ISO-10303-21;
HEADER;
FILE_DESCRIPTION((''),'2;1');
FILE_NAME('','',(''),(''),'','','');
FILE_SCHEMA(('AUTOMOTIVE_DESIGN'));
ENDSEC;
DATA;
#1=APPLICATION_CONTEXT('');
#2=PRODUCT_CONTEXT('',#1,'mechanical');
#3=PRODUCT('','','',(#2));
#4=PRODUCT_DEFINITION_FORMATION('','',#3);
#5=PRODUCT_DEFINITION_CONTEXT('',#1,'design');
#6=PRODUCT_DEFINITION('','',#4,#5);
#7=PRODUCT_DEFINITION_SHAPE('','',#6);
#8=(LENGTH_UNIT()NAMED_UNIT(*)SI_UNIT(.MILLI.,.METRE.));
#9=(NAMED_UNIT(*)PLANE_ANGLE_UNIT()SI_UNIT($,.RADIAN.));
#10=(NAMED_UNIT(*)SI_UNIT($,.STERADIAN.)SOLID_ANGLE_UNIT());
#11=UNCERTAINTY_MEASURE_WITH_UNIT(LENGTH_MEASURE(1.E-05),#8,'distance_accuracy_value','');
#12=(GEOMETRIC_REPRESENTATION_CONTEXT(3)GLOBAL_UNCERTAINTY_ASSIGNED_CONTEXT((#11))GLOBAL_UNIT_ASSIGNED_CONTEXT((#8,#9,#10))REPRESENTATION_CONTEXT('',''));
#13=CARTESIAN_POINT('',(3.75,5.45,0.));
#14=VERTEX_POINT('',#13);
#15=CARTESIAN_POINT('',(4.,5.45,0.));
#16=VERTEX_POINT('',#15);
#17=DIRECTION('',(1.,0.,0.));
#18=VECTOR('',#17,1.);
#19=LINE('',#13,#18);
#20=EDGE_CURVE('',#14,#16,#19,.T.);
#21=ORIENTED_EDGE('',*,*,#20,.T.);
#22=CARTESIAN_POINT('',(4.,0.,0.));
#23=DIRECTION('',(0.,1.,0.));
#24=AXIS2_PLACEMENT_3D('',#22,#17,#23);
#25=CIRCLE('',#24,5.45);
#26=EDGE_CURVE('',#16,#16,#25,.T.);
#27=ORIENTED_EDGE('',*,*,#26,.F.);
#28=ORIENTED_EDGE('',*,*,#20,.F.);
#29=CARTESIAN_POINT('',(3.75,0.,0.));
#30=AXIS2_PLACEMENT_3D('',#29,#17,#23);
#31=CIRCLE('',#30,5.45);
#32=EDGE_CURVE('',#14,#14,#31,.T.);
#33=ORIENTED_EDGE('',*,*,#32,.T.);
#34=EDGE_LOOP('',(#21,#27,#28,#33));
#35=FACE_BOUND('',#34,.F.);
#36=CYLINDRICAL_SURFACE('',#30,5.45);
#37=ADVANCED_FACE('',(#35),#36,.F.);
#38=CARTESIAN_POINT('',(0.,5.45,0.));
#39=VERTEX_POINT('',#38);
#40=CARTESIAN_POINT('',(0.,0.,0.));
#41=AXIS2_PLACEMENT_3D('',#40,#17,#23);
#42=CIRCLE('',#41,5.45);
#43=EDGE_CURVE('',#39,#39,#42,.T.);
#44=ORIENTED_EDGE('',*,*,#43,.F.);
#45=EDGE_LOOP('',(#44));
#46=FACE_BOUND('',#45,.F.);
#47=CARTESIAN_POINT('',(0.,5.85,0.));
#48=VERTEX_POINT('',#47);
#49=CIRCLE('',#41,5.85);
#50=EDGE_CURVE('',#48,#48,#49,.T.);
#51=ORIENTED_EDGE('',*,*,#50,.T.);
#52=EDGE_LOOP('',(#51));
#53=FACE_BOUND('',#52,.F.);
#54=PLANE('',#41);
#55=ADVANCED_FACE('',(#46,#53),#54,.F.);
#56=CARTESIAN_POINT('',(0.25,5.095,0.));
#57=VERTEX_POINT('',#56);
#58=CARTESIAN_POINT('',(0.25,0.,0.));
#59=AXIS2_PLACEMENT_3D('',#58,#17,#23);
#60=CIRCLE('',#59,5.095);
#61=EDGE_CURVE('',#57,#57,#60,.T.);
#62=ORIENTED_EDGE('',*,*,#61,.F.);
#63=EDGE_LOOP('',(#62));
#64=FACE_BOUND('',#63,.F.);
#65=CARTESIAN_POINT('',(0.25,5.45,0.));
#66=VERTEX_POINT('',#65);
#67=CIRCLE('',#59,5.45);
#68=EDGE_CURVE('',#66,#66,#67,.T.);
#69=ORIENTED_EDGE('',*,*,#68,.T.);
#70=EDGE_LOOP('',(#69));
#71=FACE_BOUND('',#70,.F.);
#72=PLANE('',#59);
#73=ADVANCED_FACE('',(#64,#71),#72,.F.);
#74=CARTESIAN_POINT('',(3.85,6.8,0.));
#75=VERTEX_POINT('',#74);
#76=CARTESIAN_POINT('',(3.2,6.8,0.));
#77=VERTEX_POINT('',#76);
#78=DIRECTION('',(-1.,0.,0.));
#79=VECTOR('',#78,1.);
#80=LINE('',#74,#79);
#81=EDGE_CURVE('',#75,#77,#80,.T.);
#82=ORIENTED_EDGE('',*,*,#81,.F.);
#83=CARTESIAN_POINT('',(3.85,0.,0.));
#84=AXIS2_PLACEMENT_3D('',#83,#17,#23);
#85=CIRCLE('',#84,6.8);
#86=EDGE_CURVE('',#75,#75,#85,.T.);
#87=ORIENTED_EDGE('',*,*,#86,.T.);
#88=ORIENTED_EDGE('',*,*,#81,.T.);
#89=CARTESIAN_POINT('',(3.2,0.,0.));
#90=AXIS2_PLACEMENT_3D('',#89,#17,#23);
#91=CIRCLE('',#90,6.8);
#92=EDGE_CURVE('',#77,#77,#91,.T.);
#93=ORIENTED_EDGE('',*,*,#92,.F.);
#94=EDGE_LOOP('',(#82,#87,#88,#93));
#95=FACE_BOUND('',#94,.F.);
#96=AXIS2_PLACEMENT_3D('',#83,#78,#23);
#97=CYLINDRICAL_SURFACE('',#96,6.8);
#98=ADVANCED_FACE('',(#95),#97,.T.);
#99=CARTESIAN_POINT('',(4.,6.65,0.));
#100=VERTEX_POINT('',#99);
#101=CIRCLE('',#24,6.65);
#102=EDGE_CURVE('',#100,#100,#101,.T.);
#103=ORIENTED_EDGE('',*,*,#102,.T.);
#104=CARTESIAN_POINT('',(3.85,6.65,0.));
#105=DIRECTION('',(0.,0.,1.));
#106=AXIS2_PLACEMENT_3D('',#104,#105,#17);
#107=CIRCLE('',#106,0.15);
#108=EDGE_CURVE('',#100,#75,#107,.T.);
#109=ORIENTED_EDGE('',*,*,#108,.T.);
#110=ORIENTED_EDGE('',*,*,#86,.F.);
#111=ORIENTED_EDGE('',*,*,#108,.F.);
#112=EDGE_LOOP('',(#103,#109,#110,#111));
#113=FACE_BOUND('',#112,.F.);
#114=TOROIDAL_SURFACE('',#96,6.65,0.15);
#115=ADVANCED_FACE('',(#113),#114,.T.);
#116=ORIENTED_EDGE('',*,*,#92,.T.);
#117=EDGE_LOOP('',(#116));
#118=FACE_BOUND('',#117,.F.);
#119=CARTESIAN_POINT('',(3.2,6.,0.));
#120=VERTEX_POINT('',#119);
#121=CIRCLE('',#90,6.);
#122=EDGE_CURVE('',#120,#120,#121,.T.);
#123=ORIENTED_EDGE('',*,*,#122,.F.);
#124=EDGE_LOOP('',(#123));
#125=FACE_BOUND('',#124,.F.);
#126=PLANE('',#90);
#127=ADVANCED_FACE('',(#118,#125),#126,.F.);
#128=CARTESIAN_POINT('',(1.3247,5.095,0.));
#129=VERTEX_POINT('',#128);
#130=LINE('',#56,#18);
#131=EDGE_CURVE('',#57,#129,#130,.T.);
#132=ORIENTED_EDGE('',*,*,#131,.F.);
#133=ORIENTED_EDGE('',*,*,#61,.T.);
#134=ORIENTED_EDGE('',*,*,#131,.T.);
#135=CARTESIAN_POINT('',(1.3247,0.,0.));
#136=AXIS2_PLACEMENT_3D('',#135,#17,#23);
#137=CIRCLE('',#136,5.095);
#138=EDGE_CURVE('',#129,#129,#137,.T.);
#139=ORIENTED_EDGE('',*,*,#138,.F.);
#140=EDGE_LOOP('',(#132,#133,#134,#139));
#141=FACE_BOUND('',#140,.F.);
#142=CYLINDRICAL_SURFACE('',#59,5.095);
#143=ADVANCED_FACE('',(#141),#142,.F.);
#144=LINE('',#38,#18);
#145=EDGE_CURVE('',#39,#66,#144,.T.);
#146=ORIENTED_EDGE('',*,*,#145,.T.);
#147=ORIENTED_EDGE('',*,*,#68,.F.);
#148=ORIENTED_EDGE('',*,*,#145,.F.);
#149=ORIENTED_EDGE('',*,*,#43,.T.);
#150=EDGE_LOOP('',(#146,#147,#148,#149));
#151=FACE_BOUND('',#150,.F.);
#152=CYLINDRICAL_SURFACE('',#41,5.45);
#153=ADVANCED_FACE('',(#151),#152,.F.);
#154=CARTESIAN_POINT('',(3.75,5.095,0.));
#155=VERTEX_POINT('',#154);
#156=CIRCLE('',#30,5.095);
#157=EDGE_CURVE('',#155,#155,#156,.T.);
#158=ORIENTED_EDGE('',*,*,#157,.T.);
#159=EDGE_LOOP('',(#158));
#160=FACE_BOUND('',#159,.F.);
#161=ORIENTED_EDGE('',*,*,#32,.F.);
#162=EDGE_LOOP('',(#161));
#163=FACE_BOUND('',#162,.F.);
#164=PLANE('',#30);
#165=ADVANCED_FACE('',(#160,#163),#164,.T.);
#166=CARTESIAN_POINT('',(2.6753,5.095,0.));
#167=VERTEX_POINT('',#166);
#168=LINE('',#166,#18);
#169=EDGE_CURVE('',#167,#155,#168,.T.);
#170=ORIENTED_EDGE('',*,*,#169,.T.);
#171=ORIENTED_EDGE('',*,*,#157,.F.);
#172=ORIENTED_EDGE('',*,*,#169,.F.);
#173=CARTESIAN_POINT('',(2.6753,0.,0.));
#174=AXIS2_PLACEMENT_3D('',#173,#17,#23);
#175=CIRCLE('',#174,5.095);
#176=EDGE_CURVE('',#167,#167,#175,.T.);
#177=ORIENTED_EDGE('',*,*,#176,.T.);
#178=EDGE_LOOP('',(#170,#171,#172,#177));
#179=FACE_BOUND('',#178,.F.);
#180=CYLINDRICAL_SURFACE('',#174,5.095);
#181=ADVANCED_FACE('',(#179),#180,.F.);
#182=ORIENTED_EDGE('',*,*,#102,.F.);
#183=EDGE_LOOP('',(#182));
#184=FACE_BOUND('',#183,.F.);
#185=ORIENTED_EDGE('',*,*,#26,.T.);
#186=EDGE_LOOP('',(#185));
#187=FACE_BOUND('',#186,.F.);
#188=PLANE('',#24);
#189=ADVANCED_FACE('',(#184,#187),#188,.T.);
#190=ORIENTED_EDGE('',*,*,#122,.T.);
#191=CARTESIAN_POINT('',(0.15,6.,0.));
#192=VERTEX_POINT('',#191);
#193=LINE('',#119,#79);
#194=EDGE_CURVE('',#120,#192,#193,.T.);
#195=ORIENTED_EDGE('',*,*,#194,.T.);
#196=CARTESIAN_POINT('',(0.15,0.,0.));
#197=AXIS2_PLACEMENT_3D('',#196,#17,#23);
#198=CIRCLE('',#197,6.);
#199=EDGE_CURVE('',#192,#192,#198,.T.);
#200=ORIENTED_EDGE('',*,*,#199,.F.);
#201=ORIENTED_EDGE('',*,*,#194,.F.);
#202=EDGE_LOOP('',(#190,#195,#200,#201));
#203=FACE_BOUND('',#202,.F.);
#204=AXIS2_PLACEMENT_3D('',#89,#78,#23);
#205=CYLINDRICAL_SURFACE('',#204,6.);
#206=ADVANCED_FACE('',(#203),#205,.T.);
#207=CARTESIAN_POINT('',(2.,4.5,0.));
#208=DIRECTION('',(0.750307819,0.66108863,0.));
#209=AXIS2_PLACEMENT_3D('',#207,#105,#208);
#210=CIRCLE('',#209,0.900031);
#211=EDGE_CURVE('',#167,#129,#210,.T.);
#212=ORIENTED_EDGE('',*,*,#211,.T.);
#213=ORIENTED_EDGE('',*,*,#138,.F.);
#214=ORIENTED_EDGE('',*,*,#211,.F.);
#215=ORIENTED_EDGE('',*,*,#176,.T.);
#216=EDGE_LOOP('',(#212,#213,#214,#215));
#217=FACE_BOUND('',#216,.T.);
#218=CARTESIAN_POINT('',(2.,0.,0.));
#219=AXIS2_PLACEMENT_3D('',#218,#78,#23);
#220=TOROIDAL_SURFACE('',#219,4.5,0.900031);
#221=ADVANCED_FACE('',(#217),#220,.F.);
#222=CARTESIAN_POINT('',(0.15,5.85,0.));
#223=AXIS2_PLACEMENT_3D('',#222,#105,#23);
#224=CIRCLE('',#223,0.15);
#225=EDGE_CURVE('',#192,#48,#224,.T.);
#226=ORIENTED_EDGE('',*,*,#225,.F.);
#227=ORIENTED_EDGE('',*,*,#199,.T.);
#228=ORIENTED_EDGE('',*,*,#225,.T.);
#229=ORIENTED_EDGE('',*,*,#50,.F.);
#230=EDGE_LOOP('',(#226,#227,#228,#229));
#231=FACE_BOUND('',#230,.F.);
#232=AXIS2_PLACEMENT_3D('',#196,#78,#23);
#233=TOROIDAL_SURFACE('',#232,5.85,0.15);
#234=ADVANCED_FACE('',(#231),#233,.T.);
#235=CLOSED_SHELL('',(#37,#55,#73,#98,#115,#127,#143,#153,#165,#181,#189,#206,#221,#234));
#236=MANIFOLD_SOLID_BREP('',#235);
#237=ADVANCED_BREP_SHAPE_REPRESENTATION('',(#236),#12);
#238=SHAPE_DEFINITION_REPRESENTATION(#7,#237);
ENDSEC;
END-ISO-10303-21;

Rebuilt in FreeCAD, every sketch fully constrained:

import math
import FreeCAD as App
import Part
import Sketcher
from FreeCAD import Vector
Q = App.Units.Quantity

doc = App.newDocument("Part")
params = doc.addObject("Spreadsheet::Sheet", "Params")
for row, (alias, value) in enumerate([
    ("sketch1_radius", "0.9 mm"),
    ("sketch1_radius2", "0.15 mm"),
    ("sketch1_height", "0.4 mm"),
    ("sketch1_height2", "1.2 mm"),
    ("sketch1_width", "0.25 mm"),
    ("revolution_angle", "360 deg"),
], start=1):
    params.set(f"A{row}", alias)
    params.set(f"B{row}", "=" + value)
    params.setAlias(f"B{row}", alias)

body = doc.addObject("PartDesign::Body", "Body")

# Sketch on XY plane
sketch1 = doc.addObject("Sketcher::SketchObject", "Sketch")
body.addObject(sketch1)
sketch1.AttachmentSupport = (doc.XY_Plane, [""])
sketch1.MapMode = "FlatFace"
sketch1.addGeometry([
    Part.LineSegment(Vector(0, 5.85, 0), Vector(0, 5.45, 0)),  # 0
    Part.LineSegment(Vector(0, 5.45, 0), Vector(0.25, 5.45, 0)),  # 1
    Part.LineSegment(Vector(0.25, 5.45, 0), Vector(0.25, 5.095, 0)),  # 2
    Part.LineSegment(Vector(0.25, 5.095, 0), Vector(1.3247, 5.095, 0)),  # 3
    Part.ArcOfCircle(Part.Circle(Vector(2, 4.5, 0), Vector(0, 0, 1), 0.900031), math.radians(41.382951), math.radians(138.617049)),  # 4
    Part.LineSegment(Vector(2.6753, 5.095, 0), Vector(3.75, 5.095, 0)),  # 5
    Part.LineSegment(Vector(3.75, 5.095, 0), Vector(3.75, 5.45, 0)),  # 6
    Part.LineSegment(Vector(3.75, 5.45, 0), Vector(4, 5.45, 0)),  # 7
    Part.LineSegment(Vector(4, 5.45, 0), Vector(4, 6.65, 0)),  # 8
    Part.ArcOfCircle(Part.Circle(Vector(3.85, 6.65, 0), Vector(0, 0, 1), 0.15), math.radians(0), math.radians(90)),  # 9
    Part.LineSegment(Vector(3.85, 6.8, 0), Vector(3.2, 6.8, 0)),  # 10
    Part.LineSegment(Vector(3.2, 6.8, 0), Vector(3.2, 6, 0)),  # 11
    Part.LineSegment(Vector(3.2, 6, 0), Vector(0.15, 6, 0)),  # 12
    Part.ArcOfCircle(Part.Circle(Vector(0.15, 5.85, 0), Vector(0, 0, 1), 0.15), math.radians(90), math.radians(180)),  # 13
], False)
sketch1.addConstraint([
    Sketcher.Constraint("Coincident", 0, 2, 1, 1),
    Sketcher.Constraint("Coincident", 1, 2, 2, 1),
    Sketcher.Constraint("Coincident", 2, 2, 3, 1),
    Sketcher.Constraint("Coincident", 3, 2, 4, 2),
    Sketcher.Constraint("Coincident", 4, 1, 5, 1),
    Sketcher.Constraint("Coincident", 5, 2, 6, 1),
    Sketcher.Constraint("Coincident", 6, 2, 7, 1),
    Sketcher.Constraint("Coincident", 7, 2, 8, 1),
    Sketcher.Constraint("Tangent", 8, 2, 9, 1),
    Sketcher.Constraint("Tangent", 9, 2, 10, 1),
    Sketcher.Constraint("Coincident", 10, 2, 11, 1),
    Sketcher.Constraint("Coincident", 11, 2, 12, 1),
    Sketcher.Constraint("Tangent", 12, 2, 13, 1),
    Sketcher.Constraint("Tangent", 13, 2, 0, 1),
    Sketcher.Constraint("Vertical", 0),
    Sketcher.Constraint("Horizontal", 1),
    Sketcher.Constraint("Vertical", 2),
    Sketcher.Constraint("Horizontal", 3),
    Sketcher.Constraint("Horizontal", 5),
    Sketcher.Constraint("Vertical", 6),
    Sketcher.Constraint("Horizontal", 7),
    Sketcher.Constraint("Vertical", 8),
    Sketcher.Constraint("Horizontal", 10),
    Sketcher.Constraint("Vertical", 11),
    Sketcher.Constraint("Horizontal", 12),
    Sketcher.Constraint("Equal", 9, 13),
    Sketcher.Constraint("PointOnObject", 0, 2, -2),
    Sketcher.Constraint("Horizontal", 3, 2, 4, 1),
    Sketcher.Constraint("Horizontal", 1, 2, 6, 2),
    Sketcher.Constraint("Equal", 3, 5),
    Sketcher.Constraint("Equal", 1, 7),
    Sketcher.Constraint("Radius", 4, Q("0.9 mm")),
    Sketcher.Constraint("Radius", 9, Q("0.15 mm")),
    Sketcher.Constraint("DistanceY", 0, 2, 0, 1, Q("0.4 mm")),
    Sketcher.Constraint("DistanceY", 8, 1, 8, 2, Q("1.2 mm")),
    Sketcher.Constraint("DistanceX", -1, 1, 4, 3, Q("2 mm")),
    Sketcher.Constraint("DistanceY", -1, 1, 11, 2, Q("6 mm")),
    Sketcher.Constraint("DistanceX", 1, 1, 1, 2, Q("0.25 mm")),
    Sketcher.Constraint("DistanceX", 10, 2, 10, 1, Q("0.65 mm")),
    Sketcher.Constraint("DistanceY", -1, 1, 4, 3, Q("4.5 mm")),
    Sketcher.Constraint("DistanceY", 2, 2, 2, 1, Q("0.355 mm")),
])
sketch1.setExpression("Constraints[31]", "Params.sketch1_radius")
sketch1.setExpression("Constraints[32]", "Params.sketch1_radius2")
sketch1.setExpression("Constraints[33]", "Params.sketch1_height")
sketch1.setExpression("Constraints[34]", "Params.sketch1_height2")
sketch1.setExpression("Constraints[37]", "Params.sketch1_width")
revolution = doc.addObject("PartDesign::Revolution", "Revolution")
body.addObject(revolution)
revolution.Profile = sketch1
revolution.ReferenceAxis = (sketch1, ["H_Axis"])
revolution.setExpression("Angle", "Params.revolution_angle")

doc.recompute()
